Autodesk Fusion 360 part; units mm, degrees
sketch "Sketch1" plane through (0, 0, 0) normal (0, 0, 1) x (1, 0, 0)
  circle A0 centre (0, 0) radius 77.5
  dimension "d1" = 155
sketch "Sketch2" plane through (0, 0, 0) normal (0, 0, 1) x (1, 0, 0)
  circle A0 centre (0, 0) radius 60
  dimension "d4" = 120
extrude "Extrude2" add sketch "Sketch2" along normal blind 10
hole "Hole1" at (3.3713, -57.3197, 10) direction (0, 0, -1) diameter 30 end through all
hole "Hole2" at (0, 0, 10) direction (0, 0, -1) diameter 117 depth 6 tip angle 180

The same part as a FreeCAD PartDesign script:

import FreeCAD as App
import Part
import Sketcher
from FreeCAD import Vector
Q = App.Units.Quantity

doc = App.newDocument("Part")
body = doc.addObject("PartDesign::Body", "Body")

# Sketch on XY plane
sketch1 = body.newObject("Sketcher::SketchObject", "Sketch")
sketch1.AttachmentSupport = (doc.getObject("XY_Plane"), [""])
sketch1.MapMode = "FlatFace"
sketch1.addGeometry(Part.Circle(Vector(0, 0, 0), Vector(0, 0, 1), 60), False)
sketch1.addConstraint([
    Sketcher.Constraint("Coincident", 0, 3, -1, 1),
    Sketcher.Constraint("Diameter", 0, Q("120 mm")),
])
pad1 = body.newObject("PartDesign::Pad", "Pad")
pad1.Profile = sketch1
pad1.Length = 10

# Sketch on XY plane
sketch2 = body.newObject("Sketcher::SketchObject", "Sketch001")
sketch2.AttachmentSupport = (doc.getObject("XY_Plane"), [""])
sketch2.MapMode = "FlatFace"
sketch2.AttachmentOffset = App.Placement(Vector(0, 0, 10), App.Rotation())
sketch2.addGeometry(Part.Circle(Vector(3, -57, 0), Vector(0, 0, 1), 15), False)
sketch2.addConstraint([
    Sketcher.Constraint("Diameter", 0, Q("30 mm")),
    Sketcher.Constraint("DistanceX", -1, 1, 0, 3, Q("3.3713 mm")),
    Sketcher.Constraint("DistanceY", 0, 3, -1, 1, Q("57.3197 mm")),
])
doc.recompute()
hole = body.newObject("PartDesign::Hole", "Hole")
hole.Profile = sketch2
hole.ThreadType = "None"
hole.Diameter = 30
hole.DepthType = "ThroughAll"

# Sketch on XY plane
sketch3 = body.newObject("Sketcher::SketchObject", "Sketch002")
sketch3.AttachmentSupport = (doc.getObject("XY_Plane"), [""])
sketch3.MapMode = "FlatFace"
sketch3.AttachmentOffset = App.Placement(Vector(0, 0, 10), App.Rotation())
sketch3.addGeometry(Part.Circle(Vector(0, 0, 0), Vector(0, 0, 1), 58), False)
sketch3.addConstraint([
    Sketcher.Constraint("Coincident", 0, 3, -1, 1),
    Sketcher.Constraint("Diameter", 0, Q("117 mm")),
])
doc.recompute()
hole2 = body.newObject("PartDesign::Hole", "Hole001")
hole2.Profile = sketch3
hole2.ThreadType = "None"
hole2.Diameter = 117
hole2.DepthType = "Dimension"
hole2.Depth = 6
hole2.DrillPoint = "Flat"

doc.recompute()
